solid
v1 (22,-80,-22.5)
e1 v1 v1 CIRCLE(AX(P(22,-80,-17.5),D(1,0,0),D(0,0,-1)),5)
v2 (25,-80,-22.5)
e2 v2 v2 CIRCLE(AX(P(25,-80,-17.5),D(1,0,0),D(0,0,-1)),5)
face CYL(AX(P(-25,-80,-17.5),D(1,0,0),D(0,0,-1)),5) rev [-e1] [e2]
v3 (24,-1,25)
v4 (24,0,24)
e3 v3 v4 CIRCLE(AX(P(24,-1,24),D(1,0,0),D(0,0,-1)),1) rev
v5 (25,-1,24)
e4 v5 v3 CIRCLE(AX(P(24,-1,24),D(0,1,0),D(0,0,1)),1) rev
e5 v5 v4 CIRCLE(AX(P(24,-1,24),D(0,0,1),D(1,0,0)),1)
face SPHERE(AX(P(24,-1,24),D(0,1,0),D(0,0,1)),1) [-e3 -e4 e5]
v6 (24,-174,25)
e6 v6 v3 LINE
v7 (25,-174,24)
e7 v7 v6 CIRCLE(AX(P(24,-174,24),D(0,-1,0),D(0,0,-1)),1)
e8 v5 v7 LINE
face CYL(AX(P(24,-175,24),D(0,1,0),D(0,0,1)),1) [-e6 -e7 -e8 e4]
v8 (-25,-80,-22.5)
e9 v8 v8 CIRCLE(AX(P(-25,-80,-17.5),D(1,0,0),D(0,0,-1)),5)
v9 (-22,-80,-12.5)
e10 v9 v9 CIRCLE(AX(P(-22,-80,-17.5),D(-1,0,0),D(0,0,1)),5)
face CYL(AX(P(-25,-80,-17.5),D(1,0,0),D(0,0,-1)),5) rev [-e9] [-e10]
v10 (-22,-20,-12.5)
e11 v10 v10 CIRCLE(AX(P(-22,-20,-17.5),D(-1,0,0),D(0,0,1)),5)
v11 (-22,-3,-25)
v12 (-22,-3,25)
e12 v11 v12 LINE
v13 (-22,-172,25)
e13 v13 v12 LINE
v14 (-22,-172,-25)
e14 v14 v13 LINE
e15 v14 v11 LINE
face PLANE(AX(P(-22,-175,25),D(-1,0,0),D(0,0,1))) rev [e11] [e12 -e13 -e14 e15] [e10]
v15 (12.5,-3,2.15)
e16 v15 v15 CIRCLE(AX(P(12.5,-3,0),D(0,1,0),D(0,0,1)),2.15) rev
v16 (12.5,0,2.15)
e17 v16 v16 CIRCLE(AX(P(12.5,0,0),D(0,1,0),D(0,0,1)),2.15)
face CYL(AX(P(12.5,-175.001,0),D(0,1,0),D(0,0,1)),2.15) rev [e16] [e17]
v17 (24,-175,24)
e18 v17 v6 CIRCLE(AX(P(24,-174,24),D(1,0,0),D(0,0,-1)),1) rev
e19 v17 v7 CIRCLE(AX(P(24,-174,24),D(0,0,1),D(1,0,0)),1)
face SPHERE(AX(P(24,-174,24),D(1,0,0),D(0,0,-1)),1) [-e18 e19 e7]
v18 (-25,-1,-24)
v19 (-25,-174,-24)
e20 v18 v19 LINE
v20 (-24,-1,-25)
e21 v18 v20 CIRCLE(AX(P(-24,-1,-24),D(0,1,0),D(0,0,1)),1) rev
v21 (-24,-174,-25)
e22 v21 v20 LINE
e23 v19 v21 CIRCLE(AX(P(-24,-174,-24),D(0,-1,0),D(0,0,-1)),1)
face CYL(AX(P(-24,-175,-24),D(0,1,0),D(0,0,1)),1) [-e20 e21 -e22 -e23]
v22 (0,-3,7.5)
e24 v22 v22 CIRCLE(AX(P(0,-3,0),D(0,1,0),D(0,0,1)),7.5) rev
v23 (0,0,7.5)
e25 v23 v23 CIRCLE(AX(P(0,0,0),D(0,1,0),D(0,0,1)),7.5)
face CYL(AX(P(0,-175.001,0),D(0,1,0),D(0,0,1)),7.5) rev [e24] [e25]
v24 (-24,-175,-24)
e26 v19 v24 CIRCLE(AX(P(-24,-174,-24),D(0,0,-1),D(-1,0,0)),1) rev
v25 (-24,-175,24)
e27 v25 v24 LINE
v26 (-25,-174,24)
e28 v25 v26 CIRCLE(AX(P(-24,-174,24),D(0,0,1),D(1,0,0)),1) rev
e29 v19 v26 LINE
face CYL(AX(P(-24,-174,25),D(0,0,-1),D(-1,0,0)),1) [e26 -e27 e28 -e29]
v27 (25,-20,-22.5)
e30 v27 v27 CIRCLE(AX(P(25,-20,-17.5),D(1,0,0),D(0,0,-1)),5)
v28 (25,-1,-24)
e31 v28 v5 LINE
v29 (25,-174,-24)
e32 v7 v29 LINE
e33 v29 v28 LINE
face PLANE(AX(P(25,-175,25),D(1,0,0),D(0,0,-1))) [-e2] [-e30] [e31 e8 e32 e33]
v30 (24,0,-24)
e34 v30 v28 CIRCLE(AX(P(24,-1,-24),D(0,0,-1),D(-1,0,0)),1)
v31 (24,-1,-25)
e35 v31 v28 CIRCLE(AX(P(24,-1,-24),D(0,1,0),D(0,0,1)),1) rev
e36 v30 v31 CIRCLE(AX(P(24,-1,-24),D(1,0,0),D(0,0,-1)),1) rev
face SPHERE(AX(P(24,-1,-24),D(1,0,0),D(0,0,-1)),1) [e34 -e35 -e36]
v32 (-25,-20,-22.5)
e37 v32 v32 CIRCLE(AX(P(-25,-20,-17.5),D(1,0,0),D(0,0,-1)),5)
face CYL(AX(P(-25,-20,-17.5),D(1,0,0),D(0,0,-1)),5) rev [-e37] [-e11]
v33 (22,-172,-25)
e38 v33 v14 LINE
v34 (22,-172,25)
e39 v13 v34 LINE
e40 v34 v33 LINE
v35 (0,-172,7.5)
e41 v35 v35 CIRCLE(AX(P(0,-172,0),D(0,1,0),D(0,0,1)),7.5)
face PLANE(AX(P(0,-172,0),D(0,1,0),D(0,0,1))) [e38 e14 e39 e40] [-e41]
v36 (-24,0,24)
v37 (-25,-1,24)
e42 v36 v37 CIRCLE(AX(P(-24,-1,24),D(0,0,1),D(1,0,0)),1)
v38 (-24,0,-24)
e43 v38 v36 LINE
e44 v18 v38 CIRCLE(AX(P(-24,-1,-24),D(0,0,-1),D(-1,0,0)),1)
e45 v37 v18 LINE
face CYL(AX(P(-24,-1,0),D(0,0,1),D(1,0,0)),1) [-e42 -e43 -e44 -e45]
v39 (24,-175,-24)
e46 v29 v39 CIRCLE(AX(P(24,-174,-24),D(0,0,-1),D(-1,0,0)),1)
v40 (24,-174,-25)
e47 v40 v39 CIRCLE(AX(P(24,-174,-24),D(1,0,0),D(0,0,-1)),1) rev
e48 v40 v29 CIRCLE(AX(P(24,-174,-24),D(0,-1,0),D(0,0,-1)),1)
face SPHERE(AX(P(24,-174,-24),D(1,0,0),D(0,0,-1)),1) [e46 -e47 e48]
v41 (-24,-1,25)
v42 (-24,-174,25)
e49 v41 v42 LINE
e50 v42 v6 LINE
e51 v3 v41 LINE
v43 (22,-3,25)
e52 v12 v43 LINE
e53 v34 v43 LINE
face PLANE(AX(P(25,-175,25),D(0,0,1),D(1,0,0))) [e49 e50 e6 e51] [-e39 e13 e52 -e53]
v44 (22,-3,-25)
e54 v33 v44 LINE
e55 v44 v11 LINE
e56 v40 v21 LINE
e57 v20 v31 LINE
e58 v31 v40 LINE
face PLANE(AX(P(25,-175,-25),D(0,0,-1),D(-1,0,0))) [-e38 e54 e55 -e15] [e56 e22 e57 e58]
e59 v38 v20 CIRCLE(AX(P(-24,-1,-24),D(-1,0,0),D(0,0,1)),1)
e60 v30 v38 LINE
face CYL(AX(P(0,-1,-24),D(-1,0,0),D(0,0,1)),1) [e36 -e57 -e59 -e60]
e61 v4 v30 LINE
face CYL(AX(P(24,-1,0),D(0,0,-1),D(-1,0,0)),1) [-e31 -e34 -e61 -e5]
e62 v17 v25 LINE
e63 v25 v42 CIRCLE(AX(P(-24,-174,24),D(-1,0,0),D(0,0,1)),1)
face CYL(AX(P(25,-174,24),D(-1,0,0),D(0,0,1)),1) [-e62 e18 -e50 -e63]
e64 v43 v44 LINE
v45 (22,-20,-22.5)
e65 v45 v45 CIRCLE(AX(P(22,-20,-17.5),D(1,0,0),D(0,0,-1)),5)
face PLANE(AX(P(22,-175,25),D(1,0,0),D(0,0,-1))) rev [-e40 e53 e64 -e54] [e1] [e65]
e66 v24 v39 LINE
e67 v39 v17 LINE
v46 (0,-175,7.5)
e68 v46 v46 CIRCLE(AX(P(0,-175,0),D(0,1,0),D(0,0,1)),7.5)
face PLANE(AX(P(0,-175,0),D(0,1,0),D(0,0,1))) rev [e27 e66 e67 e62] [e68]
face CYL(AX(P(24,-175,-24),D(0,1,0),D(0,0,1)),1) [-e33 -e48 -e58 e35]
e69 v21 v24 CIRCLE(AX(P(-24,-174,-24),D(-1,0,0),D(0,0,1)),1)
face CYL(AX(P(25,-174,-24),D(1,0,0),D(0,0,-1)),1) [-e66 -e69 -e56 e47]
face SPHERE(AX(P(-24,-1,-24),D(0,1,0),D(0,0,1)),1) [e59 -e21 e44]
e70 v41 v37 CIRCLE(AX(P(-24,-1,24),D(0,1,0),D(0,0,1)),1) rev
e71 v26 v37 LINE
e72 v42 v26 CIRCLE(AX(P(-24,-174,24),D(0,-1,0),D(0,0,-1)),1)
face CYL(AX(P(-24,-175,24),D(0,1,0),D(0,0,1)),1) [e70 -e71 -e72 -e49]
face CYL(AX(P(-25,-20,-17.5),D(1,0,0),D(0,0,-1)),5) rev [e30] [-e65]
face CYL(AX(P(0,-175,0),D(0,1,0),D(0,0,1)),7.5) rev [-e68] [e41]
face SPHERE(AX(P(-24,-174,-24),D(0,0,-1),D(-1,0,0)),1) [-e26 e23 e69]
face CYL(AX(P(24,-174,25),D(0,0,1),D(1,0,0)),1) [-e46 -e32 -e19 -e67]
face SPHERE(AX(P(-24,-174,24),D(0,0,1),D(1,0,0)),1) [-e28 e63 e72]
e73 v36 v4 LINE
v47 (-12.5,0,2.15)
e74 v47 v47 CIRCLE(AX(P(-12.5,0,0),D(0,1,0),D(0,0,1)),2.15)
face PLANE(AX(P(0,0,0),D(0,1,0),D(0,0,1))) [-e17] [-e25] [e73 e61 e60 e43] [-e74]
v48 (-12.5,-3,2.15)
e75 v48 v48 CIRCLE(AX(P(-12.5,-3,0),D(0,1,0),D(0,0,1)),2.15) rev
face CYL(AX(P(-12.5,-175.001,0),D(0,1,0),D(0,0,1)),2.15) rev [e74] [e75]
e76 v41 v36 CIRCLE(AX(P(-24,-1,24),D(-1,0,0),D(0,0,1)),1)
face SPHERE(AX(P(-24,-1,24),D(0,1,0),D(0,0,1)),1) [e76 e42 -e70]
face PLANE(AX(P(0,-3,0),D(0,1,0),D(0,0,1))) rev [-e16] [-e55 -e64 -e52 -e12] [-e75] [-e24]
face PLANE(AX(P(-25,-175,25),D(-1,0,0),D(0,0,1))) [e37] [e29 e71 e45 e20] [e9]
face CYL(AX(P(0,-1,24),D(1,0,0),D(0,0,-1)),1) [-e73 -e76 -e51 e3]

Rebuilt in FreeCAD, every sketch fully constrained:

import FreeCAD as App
import Part
import Sketcher
Q = App.Units.Quantity


def edges_at(feature, points):
    """Names of the edges that pass closest to the given points."""
    edges = feature.Shape.Edges
    near = lambda p: min(range(len(edges)), key=lambda i: edges[i].distToShape(Part.Vertex(*p))[0])
    return sorted({f"Edge{near(p) + 1}" for p in points})


def faces_at(feature, points):
    """Names of the faces that lie closest to the given points."""
    faces = feature.Shape.Faces
    near = lambda p: min(range(len(faces)), key=lambda i: faces[i].distToShape(Part.Vertex(*p))[0])
    return sorted({f"Face{near(p) + 1}" for p in points})

doc = App.newDocument("Part")
body = doc.addObject("PartDesign::Body", "Body")

sketch1 = body.newObject("Sketcher::SketchObject", "Sketch")
sketch1.AttachmentSupport = (doc.getObject("XZ_Plane"), [""])
sketch1.MapMode = "FlatFace"
sketch1.addGeometry([
    Part.LineSegment(App.Vector(-25, -25, 0), App.Vector(-25, 25, 0)),
    Part.LineSegment(App.Vector(-25, 25, 0), App.Vector(25, 25, 0)),
    Part.LineSegment(App.Vector(25, 25, 0), App.Vector(25, -25, 0)),
    Part.LineSegment(App.Vector(25, -25, 0), App.Vector(-25, -25, 0)),
], False)
sketch1.addConstraint([
    Sketcher.Constraint("Coincident", 0, 2, 1, 1),
    Sketcher.Constraint("Coincident", 1, 2, 2, 1),
    Sketcher.Constraint("Coincident", 2, 2, 3, 1),
    Sketcher.Constraint("Coincident", 3, 2, 0, 1),
    Sketcher.Constraint("Vertical", 0),
    Sketcher.Constraint("Horizontal", 1),
    Sketcher.Constraint("Vertical", 2),
    Sketcher.Constraint("Horizontal", 3),
    Sketcher.Constraint("Symmetric", 0, 2, 2, 2, -1, 1),
    Sketcher.Constraint("Equal", 3, 0),
    Sketcher.Constraint("DistanceX", 1, 1, 1, 2, Q("50 mm")),
])
pad1 = body.newObject("PartDesign::Pad", "Pad")
pad1.Profile = sketch1
pad1.Length = 175
doc.recompute()

thickness = body.newObject("PartDesign::Thickness", "Thickness")
thickness.Base = (pad1, faces_at(pad1, [(0, -87.5, -25), (0, -87.5, 25)]))
thickness.Value = 3
thickness.Reversed = True
thickness.Join = "Intersection"

sketch2 = body.newObject("Sketcher::SketchObject", "Sketch001")
sketch2.AttachmentSupport = (doc.getObject("XZ_Plane"), [""])
sketch2.MapMode = "FlatFace"
sketch2.addGeometry(Part.Circle(App.Vector(0, 0, 0), App.Vector(0, 0, 1), 7.5), False)
sketch2.addConstraint([
    Sketcher.Constraint("Coincident", 0, 3, -1, 1),
    Sketcher.Constraint("Diameter", 0, Q("15 mm")),
])
pocket1 = body.newObject("PartDesign::Pocket", "Pocket")
pocket1.Profile = sketch2
pocket1.Type = "UpToFirst"
pocket1.Reversed = True

sketch3 = body.newObject("Sketcher::SketchObject", "Sketch002")
sketch3.AttachmentSupport = (doc.getObject("XZ_Plane"), [""])
sketch3.MapMode = "FlatFace"
sketch3.addGeometry(Part.Circle(App.Vector(-12.5, 0, 0), App.Vector(0, 0, 1), 2.15), False)
sketch3.addConstraint([
    Sketcher.Constraint("PointOnObject", 0, 3, -1),
    Sketcher.Constraint("Diameter", 0, Q("4.3 mm")),
    Sketcher.Constraint("DistanceX", 0, 3, -1, 1, Q("12.5 mm")),
])
pocket2 = body.newObject("PartDesign::Pocket", "Pocket001")
pocket2.Profile = sketch3
pocket2.Type = "UpToFirst"
pocket2.Reversed = True

sketch4 = body.newObject("Sketcher::SketchObject", "Sketch003")
sketch4.AttachmentSupport = (doc.getObject("XZ_Plane"), [""])
sketch4.MapMode = "FlatFace"
sketch4.addGeometry(Part.Circle(App.Vector(12.5, 0, 0), App.Vector(0, 0, 1), 2.15), False)
sketch4.addConstraint([
    Sketcher.Constraint("PointOnObject", 0, 3, -1),
    Sketcher.Constraint("Diameter", 0, Q("4.3 mm")),
    Sketcher.Constraint("DistanceX", -1, 1, 0, 3, Q("12.5 mm")),
])
pocket3 = body.newObject("PartDesign::Pocket", "Pocket002")
pocket3.Profile = sketch4
pocket3.Type = "UpToFirst"
pocket3.Reversed = True

sketch5 = body.newObject("Sketcher::SketchObject", "Sketch004")
sketch5.AttachmentSupport = (doc.getObject("XZ_Plane"), [""])
sketch5.MapMode = "FlatFace"
sketch5.addGeometry(Part.Circle(App.Vector(0, 0, 0), App.Vector(0, 0, 1), 7.5), False)
sketch5.addConstraint([
    Sketcher.Constraint("Coincident", 0, 3, -1, 1),
    Sketcher.Constraint("Diameter", 0, Q("15 mm")),
])
pocket4 = body.newObject("PartDesign::Pocket", "Pocket003")
pocket4.Profile = sketch5
pocket4.Type = "ThroughAll"
pocket4.Reversed = True

sketch6 = body.newObject("Sketcher::SketchObject", "Sketch005")
sketch6.AttachmentSupport = (doc.getObject("YZ_Plane"), [""])
sketch6.MapMode = "FlatFace"
sketch6.AttachmentOffset = App.Placement(App.Vector(0, 0, 25), App.Rotation())
sketch6.addGeometry([
    Part.Circle(App.Vector(-20, -17.5, 0), App.Vector(0, 0, 1), 5),
    Part.Circle(App.Vector(-80, -17.5, 0), App.Vector(0, 0, 1), 5),
], False)
sketch6.addConstraint([
    Sketcher.Constraint("Equal", 0, 1),
    Sketcher.Constraint("Horizontal", 0, 3, 1, 3),
    Sketcher.Constraint("Diameter", 0, Q("10 mm")),
    Sketcher.Constraint("DistanceX", 0, 3, -1, 1, Q("20 mm")),
    Sketcher.Constraint("DistanceX", 1, 3, -1, 1, Q("80 mm")),
    Sketcher.Constraint("DistanceY", 0, 3, -1, 1, Q("17.5 mm")),
])
pocket5 = body.newObject("PartDesign::Pocket", "Pocket004")
pocket5.Profile = sketch6
pocket5.Type = "ThroughAll"
doc.recompute()

fillet = body.newObject("PartDesign::Fillet", "Fillet")
fillet.Base = (pocket5, edges_at(pocket5, [
    (25, -175, 0),
    (0, -175, -25),
    (-25, -175, 0),
    (0, 0, -25),
    (25, 0, 0),
    (0, 0, 25),
    (-25, 0, 0),
    (-25, -87.5, -25),
    (25, -87.5, -25),
    (25, -87.5, 25),
    (-25, -87.5, 25),
    (0, -175, 25),
]))
fillet.Radius = 1

doc.recompute()
